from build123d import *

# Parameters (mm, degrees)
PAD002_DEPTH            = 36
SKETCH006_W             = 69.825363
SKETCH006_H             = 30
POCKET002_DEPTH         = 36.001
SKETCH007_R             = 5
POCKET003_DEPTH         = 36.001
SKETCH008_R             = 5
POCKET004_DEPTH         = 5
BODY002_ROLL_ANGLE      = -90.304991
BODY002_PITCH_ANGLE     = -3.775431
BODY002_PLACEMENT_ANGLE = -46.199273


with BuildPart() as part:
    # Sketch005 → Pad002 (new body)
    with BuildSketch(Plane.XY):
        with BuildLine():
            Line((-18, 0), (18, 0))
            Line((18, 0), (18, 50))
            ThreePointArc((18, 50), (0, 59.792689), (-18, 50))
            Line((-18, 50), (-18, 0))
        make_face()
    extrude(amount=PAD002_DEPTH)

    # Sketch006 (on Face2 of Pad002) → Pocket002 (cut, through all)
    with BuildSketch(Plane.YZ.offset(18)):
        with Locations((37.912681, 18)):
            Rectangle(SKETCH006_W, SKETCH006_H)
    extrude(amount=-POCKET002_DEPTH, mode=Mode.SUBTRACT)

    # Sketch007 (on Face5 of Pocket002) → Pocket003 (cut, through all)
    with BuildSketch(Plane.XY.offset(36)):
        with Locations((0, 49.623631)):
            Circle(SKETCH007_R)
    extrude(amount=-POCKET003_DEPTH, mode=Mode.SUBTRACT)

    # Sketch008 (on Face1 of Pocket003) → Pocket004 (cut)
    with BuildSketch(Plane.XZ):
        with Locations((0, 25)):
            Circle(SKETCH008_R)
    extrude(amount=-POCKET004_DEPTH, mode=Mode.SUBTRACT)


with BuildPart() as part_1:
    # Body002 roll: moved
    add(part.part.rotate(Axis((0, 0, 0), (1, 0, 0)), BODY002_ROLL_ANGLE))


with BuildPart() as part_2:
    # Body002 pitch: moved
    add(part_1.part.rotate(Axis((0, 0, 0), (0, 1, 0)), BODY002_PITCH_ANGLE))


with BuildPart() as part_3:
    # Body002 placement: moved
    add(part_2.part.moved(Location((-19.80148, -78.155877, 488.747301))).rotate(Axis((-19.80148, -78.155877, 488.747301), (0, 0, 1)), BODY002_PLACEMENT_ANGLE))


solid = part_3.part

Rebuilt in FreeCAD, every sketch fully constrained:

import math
import FreeCAD as App
import Part
import Sketcher

V = App.Vector
Q = App.Units.Quantity

doc = App.newDocument("Part")
body = doc.addObject("PartDesign::Body", "Body")

sketch1 = body.newObject("Sketcher::SketchObject", "Sketch")
sketch1.AttachmentSupport = (doc.getObject("XY_Plane"), [""])
sketch1.MapMode = "FlatFace"
sketch1.addGeometry([
    Part.LineSegment(V(-18, 0, 0), V(18, 0, 0)),
    Part.LineSegment(V(18, 0, 0), V(18, 50, 0)),
    Part.ArcOfCircle(Part.Circle(V(0, 38.353391, 0), V(0, 0, 1), 21.439298), math.radians(32.904234), math.radians(147.095766)),
    Part.LineSegment(V(-18, 50, 0), V(-18, 0, 0)),
], False)
sketch1.addConstraint([
    Sketcher.Constraint("Coincident", 0, 2, 1, 1),
    Sketcher.Constraint("Coincident", 1, 2, 2, 1),
    Sketcher.Constraint("Coincident", 2, 2, 3, 1),
    Sketcher.Constraint("Coincident", 3, 2, 0, 1),
    Sketcher.Constraint("Horizontal", 0),
    Sketcher.Constraint("Vertical", 1),
    Sketcher.Constraint("Vertical", 3),
    Sketcher.Constraint("Symmetric", 0, 2, 3, 2, -1, 1),
    Sketcher.Constraint("PointOnObject", 2, 3, -2),
    Sketcher.Constraint("DistanceX", 0, 1, 0, 2, Q("36 mm")),
    Sketcher.Constraint("DistanceY", 1, 1, 1, 2, Q("50 mm")),
    Sketcher.Constraint("Radius", 2, Q("21.439298 mm")),
])
pad1 = body.newObject("PartDesign::Pad", "Pad")
pad1.Profile = sketch1
pad1.Length = 36

sketch2 = body.newObject("Sketcher::SketchObject", "Sketch001")
sketch2.AttachmentSupport = (doc.getObject("YZ_Plane"), [""])
sketch2.MapMode = "FlatFace"
sketch2.AttachmentOffset = App.Placement(V(0, 0, 18), App.Rotation())
sketch2.addGeometry([
    Part.LineSegment(V(2.999999, 33, 0), V(2.999999, 3, 0)),
    Part.LineSegment(V(2.999999, 3, 0), V(72.825362, 3, 0)),
    Part.LineSegment(V(72.825362, 3, 0), V(72.825362, 33, 0)),
    Part.LineSegment(V(72.825362, 33, 0), V(2.999999, 33, 0)),
], False)
sketch2.addConstraint([
    Sketcher.Constraint("Coincident", 0, 2, 1, 1),
    Sketcher.Constraint("Coincident", 1, 2, 2, 1),
    Sketcher.Constraint("Coincident", 2, 2, 3, 1),
    Sketcher.Constraint("Coincident", 3, 2, 0, 1),
    Sketcher.Constraint("Vertical", 0),
    Sketcher.Constraint("Horizontal", 1),
    Sketcher.Constraint("Vertical", 2),
    Sketcher.Constraint("Horizontal", 3),
    Sketcher.Constraint("DistanceY", 0, 2, 0, 1, Q("30 mm")),
    Sketcher.Constraint("DistanceX", -1, 1, 0, 2, Q("2.999999 mm")),
    Sketcher.Constraint("DistanceY", -1, 1, 0, 2, Q("3 mm")),
    Sketcher.Constraint("DistanceX", 1, 1, 1, 2, Q("69.825363 mm")),
])
pocket1 = body.newObject("PartDesign::Pocket", "Pocket")
pocket1.Profile = sketch2
pocket1.Type = "ThroughAll"

sketch3 = body.newObject("Sketcher::SketchObject", "Sketch002")
sketch3.AttachmentSupport = (doc.getObject("XY_Plane"), [""])
sketch3.MapMode = "FlatFace"
sketch3.AttachmentOffset = App.Placement(V(0, 0, 36), App.Rotation())
sketch3.addGeometry(Part.Circle(V(0, 49.623631, 0), V(0, 0, 1), 5), False)
sketch3.addConstraint([
    Sketcher.Constraint("PointOnObject", 0, 3, -2),
    Sketcher.Constraint("Diameter", 0, Q("10 mm")),
    Sketcher.Constraint("DistanceY", -1, 1, 0, 3, Q("49.623631 mm")),
])
pocket2 = body.newObject("PartDesign::Pocket", "Pocket001")
pocket2.Profile = sketch3
pocket2.Type = "ThroughAll"

sketch4 = body.newObject("Sketcher::SketchObject", "Sketch003")
sketch4.AttachmentSupport = (doc.getObject("XZ_Plane"), [""])
sketch4.MapMode = "FlatFace"
sketch4.addGeometry(Part.Circle(V(0, 25, 0), V(0, 0, 1), 5), False)
sketch4.addConstraint([
    Sketcher.Constraint("PointOnObject", 0, 3, -2),
    Sketcher.Constraint("Diameter", 0, Q("10 mm")),
    Sketcher.Constraint("DistanceY", -1, 1, 0, 3, Q("25 mm")),
])
pocket3 = body.newObject("PartDesign::Pocket", "Pocket002")
pocket3.Profile = sketch4
pocket3.Length = 5
body2 = doc.addObject("PartDesign::Body", "Body001")
doc.recompute()

body.Placement = App.Placement(V(0, 0, 0), App.Rotation(V(1, 0, 0), 269.695009))
boolean = body2.newObject("PartDesign::Boolean", "Boolean")
boolean.Type = "Fuse"
boolean.addObjects([body])
body3 = doc.addObject("PartDesign::Body", "Body002")
doc.recompute()

body2.Placement = App.Placement(V(0, 0, 0), App.Rotation(V(0, 1, 0), 356.224569))
boolean2 = body3.newObject("PartDesign::Boolean", "Boolean001")
boolean2.Type = "Fuse"
boolean2.addObjects([body2])
body4 = doc.addObject("PartDesign::Body", "Body003")
doc.recompute()

body3.Placement = App.Placement(V(-19.80148, -78.155877, 488.747301), App.Rotation(V(0, 0, 1), 313.800727))
boolean3 = body4.newObject("PartDesign::Boolean", "Boolean002")
boolean3.Type = "Fuse"
boolean3.addObjects([body3])

doc.recompute()
